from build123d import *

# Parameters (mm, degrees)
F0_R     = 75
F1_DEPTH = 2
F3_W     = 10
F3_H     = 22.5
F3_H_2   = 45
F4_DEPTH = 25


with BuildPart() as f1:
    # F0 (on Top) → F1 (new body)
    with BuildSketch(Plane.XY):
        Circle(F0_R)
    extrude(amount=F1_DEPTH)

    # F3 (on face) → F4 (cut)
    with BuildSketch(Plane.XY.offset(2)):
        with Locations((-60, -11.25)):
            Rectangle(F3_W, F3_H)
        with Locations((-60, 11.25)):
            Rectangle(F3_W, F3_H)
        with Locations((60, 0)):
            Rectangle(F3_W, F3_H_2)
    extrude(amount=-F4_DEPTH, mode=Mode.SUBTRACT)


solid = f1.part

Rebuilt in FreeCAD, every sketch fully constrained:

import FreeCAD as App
import Part
import Sketcher

V = App.Vector


def add_polygon(sketch, points):
    """Adds a closed chain of lines whose ends are joined by coincident constraints."""
    first, n = sketch.GeometryCount, len(points)
    for a, b in zip(points, points[1:] + points[:1]):
        sketch.addGeometry(Part.LineSegment(App.Vector(*a, 0), App.Vector(*b, 0)), False)
    for i in range(n):
        sketch.addConstraint(Sketcher.Constraint("Coincident", first + i, 2, first + (i + 1) % n, 1))

doc = App.newDocument("Part")
body = doc.addObject("PartDesign::Body", "Body")

# Sketch on XY plane
sketch1 = body.newObject("Sketcher::SketchObject", "Sketch")
sketch1.AttachmentSupport = (doc.getObject("XY_Plane"), [""])
sketch1.MapMode = "FlatFace"
sketch1.addGeometry(Part.Circle(V(0, 0, 0), V(0, 0, 1), 75), False)
sketch1.addConstraint(Sketcher.Constraint("Coincident", 0, 3, -1, 1))
sketch1.addConstraint(Sketcher.Constraint("Diameter", 0, 150.0))
pad1 = body.newObject("PartDesign::Pad", "Pad")
pad1.Profile = sketch1
pad1.Length = 2

# Sketch on XY plane
sketch2 = body.newObject("Sketcher::SketchObject", "Sketch001")
sketch2.AttachmentSupport = (doc.getObject("XY_Plane"), [""])
sketch2.MapMode = "FlatFace"
sketch2.AttachmentOffset = App.Placement(V(0, 0, 2), App.Rotation())
add_polygon(sketch2, [(-65, -22.5), (-55, -22.5), (-55, 22.5), (-65, 22.5)])  # lines 0-3
add_polygon(sketch2, [(55, 22.5), (55, -22.5), (65, -22.5), (65, 22.5)])  # lines 4-7
sketch2.addConstraint(Sketcher.Constraint("Horizontal", 0))
sketch2.addConstraint(Sketcher.Constraint("Vertical", 1))
sketch2.addConstraint(Sketcher.Constraint("Horizontal", 2))
sketch2.addConstraint(Sketcher.Constraint("Vertical", 3))
sketch2.addConstraint(Sketcher.Constraint("Vertical", 4))
sketch2.addConstraint(Sketcher.Constraint("Horizontal", 5))
sketch2.addConstraint(Sketcher.Constraint("Vertical", 6))
sketch2.addConstraint(Sketcher.Constraint("Horizontal", 7))
sketch2.addConstraint(Sketcher.Constraint("Symmetric", 1, 2, 4, 2, -1, 1))
sketch2.addConstraint(Sketcher.Constraint("Symmetric", 3, 2, 6, 2, -1, 1))
sketch2.addConstraint(Sketcher.Constraint("Horizontal", 3, 2, 4, 2))
sketch2.addConstraint(Sketcher.Constraint("DistanceX", 0, 1, 0, 2, 10.0))
sketch2.addConstraint(Sketcher.Constraint("DistanceY", 1, 1, 1, 2, 45.0))
sketch2.addConstraint(Sketcher.Constraint("DistanceX", 0, 2, -1, 1, 55.0))
pocket1 = body.newObject("PartDesign::Pocket", "Pocket")
pocket1.Profile = sketch2
pocket1.Length = 25

doc.recompute()
